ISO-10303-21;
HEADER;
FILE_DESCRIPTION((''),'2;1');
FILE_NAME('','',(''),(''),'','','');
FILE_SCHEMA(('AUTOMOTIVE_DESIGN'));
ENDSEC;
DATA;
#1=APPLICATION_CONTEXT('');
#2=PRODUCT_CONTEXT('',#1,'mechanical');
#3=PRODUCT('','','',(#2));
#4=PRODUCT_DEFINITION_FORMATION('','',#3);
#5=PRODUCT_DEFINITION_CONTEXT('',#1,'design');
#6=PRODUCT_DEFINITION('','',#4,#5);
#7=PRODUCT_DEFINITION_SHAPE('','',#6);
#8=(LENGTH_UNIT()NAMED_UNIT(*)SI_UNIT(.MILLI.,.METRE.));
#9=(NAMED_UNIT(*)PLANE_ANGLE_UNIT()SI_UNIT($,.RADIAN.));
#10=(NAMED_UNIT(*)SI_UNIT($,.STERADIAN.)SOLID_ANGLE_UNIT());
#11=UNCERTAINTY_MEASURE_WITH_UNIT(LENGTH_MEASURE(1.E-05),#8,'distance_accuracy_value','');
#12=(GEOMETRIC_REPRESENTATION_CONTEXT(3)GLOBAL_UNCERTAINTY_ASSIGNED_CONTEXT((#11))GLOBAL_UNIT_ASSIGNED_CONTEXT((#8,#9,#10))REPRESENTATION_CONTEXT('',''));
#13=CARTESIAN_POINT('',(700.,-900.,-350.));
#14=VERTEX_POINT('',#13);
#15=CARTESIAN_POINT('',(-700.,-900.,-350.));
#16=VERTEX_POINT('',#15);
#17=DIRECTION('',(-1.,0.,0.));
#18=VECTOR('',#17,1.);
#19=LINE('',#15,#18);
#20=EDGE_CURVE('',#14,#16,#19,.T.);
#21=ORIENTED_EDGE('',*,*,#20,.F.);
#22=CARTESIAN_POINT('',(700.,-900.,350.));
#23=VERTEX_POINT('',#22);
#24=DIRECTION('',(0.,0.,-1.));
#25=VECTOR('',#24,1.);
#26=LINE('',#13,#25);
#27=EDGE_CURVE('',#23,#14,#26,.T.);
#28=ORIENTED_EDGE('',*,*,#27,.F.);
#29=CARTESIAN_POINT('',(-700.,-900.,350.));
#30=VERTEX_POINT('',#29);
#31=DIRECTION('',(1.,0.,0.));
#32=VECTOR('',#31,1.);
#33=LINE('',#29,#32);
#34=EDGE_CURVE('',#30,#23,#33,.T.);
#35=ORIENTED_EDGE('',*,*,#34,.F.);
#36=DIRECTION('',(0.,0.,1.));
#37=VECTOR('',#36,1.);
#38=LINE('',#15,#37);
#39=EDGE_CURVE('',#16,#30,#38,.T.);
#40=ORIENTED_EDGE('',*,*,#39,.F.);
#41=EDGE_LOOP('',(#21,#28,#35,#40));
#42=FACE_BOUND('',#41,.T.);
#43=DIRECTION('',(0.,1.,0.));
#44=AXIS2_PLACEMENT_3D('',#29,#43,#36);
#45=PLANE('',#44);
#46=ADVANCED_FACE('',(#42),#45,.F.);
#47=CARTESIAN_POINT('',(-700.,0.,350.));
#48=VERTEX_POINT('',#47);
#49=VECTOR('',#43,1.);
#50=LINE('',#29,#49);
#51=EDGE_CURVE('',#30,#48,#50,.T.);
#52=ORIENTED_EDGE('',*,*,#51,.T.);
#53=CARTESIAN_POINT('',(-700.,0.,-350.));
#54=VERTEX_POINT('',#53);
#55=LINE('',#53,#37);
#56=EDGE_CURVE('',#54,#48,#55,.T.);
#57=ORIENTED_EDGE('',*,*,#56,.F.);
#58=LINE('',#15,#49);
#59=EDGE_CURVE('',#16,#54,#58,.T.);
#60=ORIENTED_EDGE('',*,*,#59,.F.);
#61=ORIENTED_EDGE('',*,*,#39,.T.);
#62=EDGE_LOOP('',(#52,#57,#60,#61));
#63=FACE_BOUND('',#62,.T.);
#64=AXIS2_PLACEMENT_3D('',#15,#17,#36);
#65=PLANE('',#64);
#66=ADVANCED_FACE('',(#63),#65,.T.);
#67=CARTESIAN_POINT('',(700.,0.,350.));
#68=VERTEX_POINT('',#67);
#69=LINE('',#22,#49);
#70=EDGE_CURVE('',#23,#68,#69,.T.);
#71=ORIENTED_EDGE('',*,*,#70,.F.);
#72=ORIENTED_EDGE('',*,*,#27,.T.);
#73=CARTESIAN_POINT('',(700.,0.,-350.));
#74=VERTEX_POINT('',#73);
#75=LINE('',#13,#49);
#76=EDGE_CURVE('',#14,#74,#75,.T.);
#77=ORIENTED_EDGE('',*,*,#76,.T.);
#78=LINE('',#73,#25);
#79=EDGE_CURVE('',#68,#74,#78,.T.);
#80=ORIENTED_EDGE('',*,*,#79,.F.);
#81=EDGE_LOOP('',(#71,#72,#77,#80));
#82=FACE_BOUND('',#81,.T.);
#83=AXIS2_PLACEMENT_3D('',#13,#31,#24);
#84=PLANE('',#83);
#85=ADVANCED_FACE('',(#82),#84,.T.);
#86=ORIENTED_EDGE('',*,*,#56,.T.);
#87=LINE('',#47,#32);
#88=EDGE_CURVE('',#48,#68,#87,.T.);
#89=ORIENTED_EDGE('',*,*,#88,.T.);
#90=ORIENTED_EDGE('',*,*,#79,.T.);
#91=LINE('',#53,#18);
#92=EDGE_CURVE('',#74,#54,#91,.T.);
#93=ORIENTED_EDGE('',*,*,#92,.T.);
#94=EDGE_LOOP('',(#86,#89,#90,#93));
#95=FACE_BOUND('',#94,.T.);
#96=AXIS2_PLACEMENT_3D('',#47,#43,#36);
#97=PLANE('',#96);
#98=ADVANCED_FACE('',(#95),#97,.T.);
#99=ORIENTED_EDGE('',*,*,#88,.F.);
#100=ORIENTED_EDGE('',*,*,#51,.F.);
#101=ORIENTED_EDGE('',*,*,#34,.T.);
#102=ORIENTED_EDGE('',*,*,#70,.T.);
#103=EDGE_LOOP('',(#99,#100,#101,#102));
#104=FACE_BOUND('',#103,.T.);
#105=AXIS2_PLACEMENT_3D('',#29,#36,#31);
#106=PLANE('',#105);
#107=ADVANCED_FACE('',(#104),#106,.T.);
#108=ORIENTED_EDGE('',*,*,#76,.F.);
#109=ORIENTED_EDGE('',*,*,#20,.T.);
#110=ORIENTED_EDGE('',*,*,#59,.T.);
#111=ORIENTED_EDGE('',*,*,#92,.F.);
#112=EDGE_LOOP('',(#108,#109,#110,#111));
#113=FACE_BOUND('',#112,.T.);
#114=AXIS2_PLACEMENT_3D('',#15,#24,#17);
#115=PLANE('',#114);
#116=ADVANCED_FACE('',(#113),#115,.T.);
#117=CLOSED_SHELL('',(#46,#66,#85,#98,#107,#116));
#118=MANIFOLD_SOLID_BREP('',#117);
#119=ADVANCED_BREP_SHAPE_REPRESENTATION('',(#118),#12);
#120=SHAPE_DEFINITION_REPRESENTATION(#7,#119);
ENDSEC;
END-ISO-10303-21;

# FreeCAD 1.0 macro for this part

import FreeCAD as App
import Part
import Sketcher
Q = App.Units.Quantity


def add_polygon(sketch, points):
    """Adds a closed chain of lines whose ends are joined by coincident constraints."""
    first, n = sketch.GeometryCount, len(points)
    for a, b in zip(points, points[1:] + points[:1]):
        sketch.addGeometry(Part.LineSegment(App.Vector(*a, 0), App.Vector(*b, 0)), False)
    for i in range(n):
        sketch.addConstraint(Sketcher.Constraint("Coincident", first + i, 2, first + (i + 1) % n, 1))

doc = App.newDocument("Part")
params = doc.addObject("Spreadsheet::Sheet", "Params")
for row, (alias, value) in enumerate([
    ("sketch1_width", "1400 mm"),
    ("sketch1_height", "700 mm"),
    ("pad1_length", "900 mm"),
], start=1):
    params.set(f"A{row}", alias)
    params.set(f"B{row}", "=" + value)
    params.setAlias(f"B{row}", alias)

body = doc.addObject("PartDesign::Body", "Body")

# Sketch on XZ plane
sketch1 = doc.addObject("Sketcher::SketchObject", "Sketch")
body.addObject(sketch1)
sketch1.AttachmentSupport = (doc.XZ_Plane, [""])
sketch1.MapMode = "FlatFace"
add_polygon(sketch1, [(-700, -350), (-700, 350), (700, 350), (700, -350)])  # lines 0-3
sketch1.addConstraint(Sketcher.Constraint("Vertical", 0))
sketch1.addConstraint(Sketcher.Constraint("Horizontal", 1))
sketch1.addConstraint(Sketcher.Constraint("Vertical", 2))
sketch1.addConstraint(Sketcher.Constraint("Horizontal", 3))
sketch1.addConstraint(Sketcher.Constraint("Symmetric", 0, 2, 2, 2, -1, 1))
sketch1.addConstraint(Sketcher.Constraint("DistanceX", 1, 1, 1, 2, Q("1400 mm")))
sketch1.addConstraint(Sketcher.Constraint("DistanceY", 0, 1, 0, 2, Q("700 mm")))
sketch1.setExpression("Constraints[9]", "Params.sketch1_width")
sketch1.setExpression("Constraints[10]", "Params.sketch1_height")
pad1 = doc.addObject("PartDesign::Pad", "Pad")
body.addObject(pad1)
pad1.Profile = sketch1
pad1.setExpression("Length", "Params.pad1_length")

doc.recompute()
